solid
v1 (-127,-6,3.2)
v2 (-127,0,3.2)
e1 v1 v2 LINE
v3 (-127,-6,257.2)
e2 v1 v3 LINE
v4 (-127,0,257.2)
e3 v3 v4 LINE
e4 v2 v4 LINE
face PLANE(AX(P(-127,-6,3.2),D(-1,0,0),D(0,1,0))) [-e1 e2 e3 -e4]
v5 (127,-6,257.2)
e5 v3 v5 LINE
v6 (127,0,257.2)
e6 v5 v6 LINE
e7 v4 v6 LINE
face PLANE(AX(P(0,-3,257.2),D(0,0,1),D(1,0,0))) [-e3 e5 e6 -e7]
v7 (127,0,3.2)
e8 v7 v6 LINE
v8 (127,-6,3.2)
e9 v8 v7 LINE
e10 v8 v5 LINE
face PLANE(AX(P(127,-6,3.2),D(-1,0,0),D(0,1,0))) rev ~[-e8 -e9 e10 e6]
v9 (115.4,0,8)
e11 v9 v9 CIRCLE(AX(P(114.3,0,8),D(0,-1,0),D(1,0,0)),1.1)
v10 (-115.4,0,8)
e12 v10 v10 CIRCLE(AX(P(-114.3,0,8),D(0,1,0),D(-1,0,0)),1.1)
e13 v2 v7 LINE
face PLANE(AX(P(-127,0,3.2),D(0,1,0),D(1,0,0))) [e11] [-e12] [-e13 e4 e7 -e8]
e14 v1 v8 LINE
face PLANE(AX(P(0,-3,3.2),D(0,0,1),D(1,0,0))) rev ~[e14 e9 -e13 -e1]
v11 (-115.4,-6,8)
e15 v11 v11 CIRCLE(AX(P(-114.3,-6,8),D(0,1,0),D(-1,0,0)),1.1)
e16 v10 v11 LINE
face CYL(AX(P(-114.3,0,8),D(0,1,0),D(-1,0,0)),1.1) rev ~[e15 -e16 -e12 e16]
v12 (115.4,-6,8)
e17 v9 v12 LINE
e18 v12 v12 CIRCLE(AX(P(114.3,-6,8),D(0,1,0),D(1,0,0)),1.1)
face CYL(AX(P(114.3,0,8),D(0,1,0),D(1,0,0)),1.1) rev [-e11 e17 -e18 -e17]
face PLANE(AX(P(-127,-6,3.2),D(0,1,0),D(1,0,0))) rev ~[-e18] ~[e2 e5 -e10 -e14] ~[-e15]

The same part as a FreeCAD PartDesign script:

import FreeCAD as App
import Part
import Sketcher

V = App.Vector

doc = App.newDocument("Part")
body = doc.addObject("PartDesign::Body", "Body")

sketch1 = body.newObject("Sketcher::SketchObject", "Sketch")
sketch1.AttachmentSupport = (doc.getObject("XY_Plane"), [""])
sketch1.MapMode = "FlatFace"
sketch1.AttachmentOffset = App.Placement(V(0, 0, 1.6), App.Rotation())
sketch1.addGeometry([
    Part.LineSegment(V(-127, 6, 0), V(-127, 0, 0)),
    Part.LineSegment(V(-127, 0, 0), V(127, 0, 0)),
    Part.LineSegment(V(127, 0, 0), V(127, 6, 0)),
    Part.LineSegment(V(127, 6, 0), V(-127, 6, 0)),
], False)
sketch1.addConstraint([
    Sketcher.Constraint("Coincident", 0, 2, 1, 1),
    Sketcher.Constraint("Coincident", 1, 2, 2, 1),
    Sketcher.Constraint("Coincident", 2, 2, 3, 1),
    Sketcher.Constraint("Coincident", 3, 2, 0, 1),
    Sketcher.Constraint("Vertical", 0),
    Sketcher.Constraint("Horizontal", 1),
    Sketcher.Constraint("Vertical", 2),
    Sketcher.Constraint("Horizontal", 3),
    Sketcher.Constraint("Symmetric", 0, 2, 1, 2, -1, 1),
    Sketcher.Constraint("DistanceX", 1, 1, 1, 2, 254.0),
    Sketcher.Constraint("DistanceY", 0, 2, 0, 1, 6.0),
])
pad1 = body.newObject("PartDesign::Pad", "Pad")
pad1.Profile = sketch1
pad1.Length = 254

sketch2 = body.newObject("Sketcher::SketchObject", "Sketch001")
sketch2.AttachmentSupport = (doc.getObject("XZ_Plane"), [""])
sketch2.MapMode = "FlatFace"
sketch2.AttachmentOffset = App.Placement(V(0, 0, -6), App.Rotation())
sketch2.addGeometry(Part.Circle(V(-114.3, 6.4, 0), V(0, 0, 1), 1.1), False)
sketch2.addConstraint([
    Sketcher.Constraint("Diameter", 0, 2.2),
    Sketcher.Constraint("DistanceX", 0, 3, -1, 1, 114.3),
    Sketcher.Constraint("DistanceY", -1, 1, 0, 3, 6.4),
])
pocket1 = body.newObject("PartDesign::Pocket", "Pocket")
pocket1.Profile = sketch2
pocket1.Type = "ThroughAll"
pocket1.Reversed = True
doc.recompute()

mirrored = body.newObject("PartDesign::Mirrored", "Mirrored")
mirrored.Originals = [pocket1]
mirrored.MirrorPlane = (doc.getObject("YZ_Plane"), [""])
body.Tip = mirrored
body2 = doc.addObject("PartDesign::Body", "Body001")
doc.recompute()

body.Placement = App.Placement(V(0, -6, 1.6), App.Rotation(V(0, 0, 1), 0))
boolean = body2.newObject("PartDesign::Boolean", "Boolean")
boolean.Type = "Fuse"
boolean.addObjects([body])

doc.recompute()
